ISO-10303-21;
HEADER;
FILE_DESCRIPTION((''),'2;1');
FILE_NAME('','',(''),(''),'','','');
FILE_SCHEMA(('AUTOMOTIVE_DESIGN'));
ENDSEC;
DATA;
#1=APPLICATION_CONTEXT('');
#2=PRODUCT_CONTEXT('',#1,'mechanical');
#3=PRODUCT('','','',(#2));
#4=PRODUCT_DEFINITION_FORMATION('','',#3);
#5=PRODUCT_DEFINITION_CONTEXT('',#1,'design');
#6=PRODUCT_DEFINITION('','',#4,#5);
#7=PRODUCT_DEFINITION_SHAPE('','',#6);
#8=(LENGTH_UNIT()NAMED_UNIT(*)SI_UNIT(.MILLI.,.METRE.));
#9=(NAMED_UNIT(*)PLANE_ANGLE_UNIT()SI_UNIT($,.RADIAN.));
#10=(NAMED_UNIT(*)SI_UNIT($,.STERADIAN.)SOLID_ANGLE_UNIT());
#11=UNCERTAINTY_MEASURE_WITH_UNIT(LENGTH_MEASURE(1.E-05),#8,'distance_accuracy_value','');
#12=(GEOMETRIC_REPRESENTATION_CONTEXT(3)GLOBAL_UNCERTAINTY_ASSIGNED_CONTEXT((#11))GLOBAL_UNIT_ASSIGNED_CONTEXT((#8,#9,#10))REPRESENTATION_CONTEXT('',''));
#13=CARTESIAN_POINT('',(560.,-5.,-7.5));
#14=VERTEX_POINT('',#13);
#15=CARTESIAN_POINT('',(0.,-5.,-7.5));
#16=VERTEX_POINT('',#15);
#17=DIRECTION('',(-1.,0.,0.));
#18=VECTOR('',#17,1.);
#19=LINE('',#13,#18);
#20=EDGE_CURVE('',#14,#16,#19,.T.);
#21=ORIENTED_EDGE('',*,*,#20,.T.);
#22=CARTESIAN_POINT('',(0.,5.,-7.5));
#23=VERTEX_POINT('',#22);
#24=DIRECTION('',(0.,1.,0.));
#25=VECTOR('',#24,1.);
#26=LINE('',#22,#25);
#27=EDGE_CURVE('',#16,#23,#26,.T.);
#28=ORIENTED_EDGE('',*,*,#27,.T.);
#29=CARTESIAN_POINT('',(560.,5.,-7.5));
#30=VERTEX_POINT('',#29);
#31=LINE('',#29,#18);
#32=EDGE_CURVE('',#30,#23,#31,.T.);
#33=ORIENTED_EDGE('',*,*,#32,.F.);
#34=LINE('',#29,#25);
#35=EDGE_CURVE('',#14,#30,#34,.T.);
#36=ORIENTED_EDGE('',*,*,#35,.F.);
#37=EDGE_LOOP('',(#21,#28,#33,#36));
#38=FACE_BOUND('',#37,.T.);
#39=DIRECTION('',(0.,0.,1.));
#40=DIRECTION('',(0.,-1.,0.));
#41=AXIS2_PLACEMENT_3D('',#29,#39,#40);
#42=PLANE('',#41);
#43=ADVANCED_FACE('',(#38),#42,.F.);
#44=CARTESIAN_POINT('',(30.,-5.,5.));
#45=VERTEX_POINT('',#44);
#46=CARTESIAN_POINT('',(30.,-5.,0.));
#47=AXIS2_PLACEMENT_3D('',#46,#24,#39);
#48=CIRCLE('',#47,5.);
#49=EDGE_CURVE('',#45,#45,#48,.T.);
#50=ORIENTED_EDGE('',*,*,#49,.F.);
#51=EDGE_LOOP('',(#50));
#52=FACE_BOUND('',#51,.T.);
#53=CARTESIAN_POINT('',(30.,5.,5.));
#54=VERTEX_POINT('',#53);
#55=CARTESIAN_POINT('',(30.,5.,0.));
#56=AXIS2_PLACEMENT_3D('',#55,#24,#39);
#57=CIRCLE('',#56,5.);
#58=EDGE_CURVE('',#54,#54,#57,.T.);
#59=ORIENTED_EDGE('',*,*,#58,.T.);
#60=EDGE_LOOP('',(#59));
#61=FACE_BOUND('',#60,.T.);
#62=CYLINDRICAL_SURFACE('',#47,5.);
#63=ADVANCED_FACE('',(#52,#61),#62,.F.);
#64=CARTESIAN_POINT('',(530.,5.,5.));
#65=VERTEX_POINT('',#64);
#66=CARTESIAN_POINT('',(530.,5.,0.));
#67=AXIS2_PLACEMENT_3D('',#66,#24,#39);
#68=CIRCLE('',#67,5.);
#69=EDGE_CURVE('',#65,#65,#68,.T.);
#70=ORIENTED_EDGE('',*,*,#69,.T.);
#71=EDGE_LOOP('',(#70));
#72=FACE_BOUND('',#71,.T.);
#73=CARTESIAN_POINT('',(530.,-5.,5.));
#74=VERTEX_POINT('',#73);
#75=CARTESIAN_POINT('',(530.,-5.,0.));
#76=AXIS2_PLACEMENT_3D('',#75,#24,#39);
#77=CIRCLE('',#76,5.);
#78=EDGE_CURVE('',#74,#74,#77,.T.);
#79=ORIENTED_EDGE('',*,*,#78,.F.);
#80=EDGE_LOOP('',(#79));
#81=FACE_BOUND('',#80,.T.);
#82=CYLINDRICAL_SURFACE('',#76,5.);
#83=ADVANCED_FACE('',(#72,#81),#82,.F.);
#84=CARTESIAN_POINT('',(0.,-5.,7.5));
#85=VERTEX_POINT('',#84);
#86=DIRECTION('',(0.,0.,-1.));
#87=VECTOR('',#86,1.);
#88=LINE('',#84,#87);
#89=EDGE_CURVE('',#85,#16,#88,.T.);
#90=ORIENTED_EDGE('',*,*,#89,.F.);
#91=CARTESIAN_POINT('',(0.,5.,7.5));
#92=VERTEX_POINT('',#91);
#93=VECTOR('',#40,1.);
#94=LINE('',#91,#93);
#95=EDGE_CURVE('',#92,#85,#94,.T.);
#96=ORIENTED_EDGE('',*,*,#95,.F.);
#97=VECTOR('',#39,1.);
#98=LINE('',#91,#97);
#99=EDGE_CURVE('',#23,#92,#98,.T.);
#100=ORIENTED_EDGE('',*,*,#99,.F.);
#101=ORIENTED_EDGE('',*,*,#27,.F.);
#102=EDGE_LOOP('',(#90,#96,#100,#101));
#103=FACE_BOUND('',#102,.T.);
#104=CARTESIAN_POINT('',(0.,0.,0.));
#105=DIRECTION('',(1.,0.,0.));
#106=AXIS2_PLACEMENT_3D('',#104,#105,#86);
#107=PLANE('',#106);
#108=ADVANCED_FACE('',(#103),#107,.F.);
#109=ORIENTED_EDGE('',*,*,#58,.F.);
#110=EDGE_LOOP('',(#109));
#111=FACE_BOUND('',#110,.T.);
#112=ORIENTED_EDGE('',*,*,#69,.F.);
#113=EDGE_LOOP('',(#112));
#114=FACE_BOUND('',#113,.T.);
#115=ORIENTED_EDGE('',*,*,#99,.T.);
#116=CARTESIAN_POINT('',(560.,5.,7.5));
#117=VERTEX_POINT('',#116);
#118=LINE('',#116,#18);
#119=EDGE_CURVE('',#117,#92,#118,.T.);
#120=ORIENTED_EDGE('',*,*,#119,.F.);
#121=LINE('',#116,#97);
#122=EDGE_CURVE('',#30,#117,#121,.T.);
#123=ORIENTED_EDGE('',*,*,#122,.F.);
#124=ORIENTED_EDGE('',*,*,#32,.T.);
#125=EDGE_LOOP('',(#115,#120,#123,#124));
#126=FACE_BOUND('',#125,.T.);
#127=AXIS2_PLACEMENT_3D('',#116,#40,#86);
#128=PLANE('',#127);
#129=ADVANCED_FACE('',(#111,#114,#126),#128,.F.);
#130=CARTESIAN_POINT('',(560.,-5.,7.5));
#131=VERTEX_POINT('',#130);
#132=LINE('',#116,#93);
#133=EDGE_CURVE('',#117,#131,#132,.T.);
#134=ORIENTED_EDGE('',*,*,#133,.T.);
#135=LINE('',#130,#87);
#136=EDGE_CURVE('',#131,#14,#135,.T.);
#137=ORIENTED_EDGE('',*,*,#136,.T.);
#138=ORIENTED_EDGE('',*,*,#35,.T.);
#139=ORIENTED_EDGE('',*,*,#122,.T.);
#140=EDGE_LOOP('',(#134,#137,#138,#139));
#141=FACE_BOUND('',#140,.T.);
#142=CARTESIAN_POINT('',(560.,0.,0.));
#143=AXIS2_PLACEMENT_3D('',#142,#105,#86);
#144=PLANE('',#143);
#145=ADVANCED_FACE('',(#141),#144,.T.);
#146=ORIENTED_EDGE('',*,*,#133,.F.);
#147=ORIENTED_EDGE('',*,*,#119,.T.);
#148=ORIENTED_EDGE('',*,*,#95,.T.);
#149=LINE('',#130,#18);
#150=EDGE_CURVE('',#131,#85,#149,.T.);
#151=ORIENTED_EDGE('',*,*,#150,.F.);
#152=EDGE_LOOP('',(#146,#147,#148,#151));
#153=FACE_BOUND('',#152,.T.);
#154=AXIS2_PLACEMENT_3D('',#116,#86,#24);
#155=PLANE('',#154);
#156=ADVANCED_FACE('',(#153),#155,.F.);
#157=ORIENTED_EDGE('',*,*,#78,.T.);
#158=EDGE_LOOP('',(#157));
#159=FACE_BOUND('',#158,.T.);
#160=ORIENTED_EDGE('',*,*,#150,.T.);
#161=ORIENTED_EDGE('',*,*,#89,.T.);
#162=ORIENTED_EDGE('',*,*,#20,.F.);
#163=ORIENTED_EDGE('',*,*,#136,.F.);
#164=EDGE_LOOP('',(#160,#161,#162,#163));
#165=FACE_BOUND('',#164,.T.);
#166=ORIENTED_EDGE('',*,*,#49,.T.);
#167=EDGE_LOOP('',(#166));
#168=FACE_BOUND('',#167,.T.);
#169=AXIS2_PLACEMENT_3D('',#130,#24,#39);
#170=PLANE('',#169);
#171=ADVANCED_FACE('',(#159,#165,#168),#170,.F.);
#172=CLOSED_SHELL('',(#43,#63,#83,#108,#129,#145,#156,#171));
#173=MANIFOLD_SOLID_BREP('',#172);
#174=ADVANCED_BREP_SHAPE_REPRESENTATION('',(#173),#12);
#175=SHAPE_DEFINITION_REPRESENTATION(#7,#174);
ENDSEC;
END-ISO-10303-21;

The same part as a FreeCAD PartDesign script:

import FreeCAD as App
import Part
import Sketcher

doc = App.newDocument("Part")
body = doc.addObject("PartDesign::Body", "Body")

# Sketch on YZ plane
sketch1 = body.newObject("Sketcher::SketchObject", "Sketch")
sketch1.AttachmentSupport = (doc.getObject("YZ_Plane"), [""])
sketch1.MapMode = "FlatFace"
sketch1.addGeometry(Part.LineSegment(App.Vector(5, 8, 0), App.Vector(-5, 8, 0)), False)
sketch1.addGeometry(Part.LineSegment(App.Vector(-5, 8, 0), App.Vector(-5, -8, 0)), False)
sketch1.addGeometry(Part.LineSegment(App.Vector(-5, -8, 0), App.Vector(5, -8, 0)), False)
sketch1.addGeometry(Part.LineSegment(App.Vector(5, -8, 0), App.Vector(5, 8, 0)), False)
sketch1.addConstraint(Sketcher.Constraint("Coincident", 0, 2, 1, 1))
sketch1.addConstraint(Sketcher.Constraint("Coincident", 1, 2, 2, 1))
sketch1.addConstraint(Sketcher.Constraint("Coincident", 2, 2, 3, 1))
sketch1.addConstraint(Sketcher.Constraint("Coincident", 3, 2, 0, 1))
sketch1.addConstraint(Sketcher.Constraint("Horizontal", 0))
sketch1.addConstraint(Sketcher.Constraint("Vertical", 1))
sketch1.addConstraint(Sketcher.Constraint("Horizontal", 2))
sketch1.addConstraint(Sketcher.Constraint("Vertical", 3))
sketch1.addConstraint(Sketcher.Constraint("Symmetric", 0, 2, 2, 2, -1, 1))
sketch1.addConstraint(Sketcher.Constraint("DistanceX", 0, 2, 0, 1, 10.0))
sketch1.addConstraint(Sketcher.Constraint("DistanceY", 1, 2, 1, 1, 15.0))
pad1 = body.newObject("PartDesign::Pad", "Pad")
pad1.Profile = sketch1
pad1.Length = 560

# Sketch on XZ plane
sketch2 = body.newObject("Sketcher::SketchObject", "Sketch001")
sketch2.AttachmentSupport = (doc.getObject("XZ_Plane"), [""])
sketch2.MapMode = "FlatFace"
sketch2.AttachmentOffset = App.Placement(App.Vector(0, 0, -5), App.Rotation())
sketch2.addGeometry(Part.Circle(App.Vector(30, 0, 0), App.Vector(0, 0, 1), 5), False)
sketch2.addGeometry(Part.Circle(App.Vector(530, 0, 0), App.Vector(0, 0, 1), 5), False)
sketch2.addConstraint(Sketcher.Constraint("Equal", 0, 1))
sketch2.addConstraint(Sketcher.Constraint("PointOnObject", 0, 3, -1))
sketch2.addConstraint(Sketcher.Constraint("PointOnObject", 1, 3, -1))
sketch2.addConstraint(Sketcher.Constraint("Diameter", 0, 10.0))
sketch2.addConstraint(Sketcher.Constraint("DistanceX", -1, 1, 0, 3, 30.0))
sketch2.addConstraint(Sketcher.Constraint("DistanceX", -1, 1, 1, 3, 530.0))
pocket1 = body.newObject("PartDesign::Pocket", "Pocket")
pocket1.Profile = sketch2
pocket1.Length = 10
pocket1.Reversed = True

doc.recompute()
